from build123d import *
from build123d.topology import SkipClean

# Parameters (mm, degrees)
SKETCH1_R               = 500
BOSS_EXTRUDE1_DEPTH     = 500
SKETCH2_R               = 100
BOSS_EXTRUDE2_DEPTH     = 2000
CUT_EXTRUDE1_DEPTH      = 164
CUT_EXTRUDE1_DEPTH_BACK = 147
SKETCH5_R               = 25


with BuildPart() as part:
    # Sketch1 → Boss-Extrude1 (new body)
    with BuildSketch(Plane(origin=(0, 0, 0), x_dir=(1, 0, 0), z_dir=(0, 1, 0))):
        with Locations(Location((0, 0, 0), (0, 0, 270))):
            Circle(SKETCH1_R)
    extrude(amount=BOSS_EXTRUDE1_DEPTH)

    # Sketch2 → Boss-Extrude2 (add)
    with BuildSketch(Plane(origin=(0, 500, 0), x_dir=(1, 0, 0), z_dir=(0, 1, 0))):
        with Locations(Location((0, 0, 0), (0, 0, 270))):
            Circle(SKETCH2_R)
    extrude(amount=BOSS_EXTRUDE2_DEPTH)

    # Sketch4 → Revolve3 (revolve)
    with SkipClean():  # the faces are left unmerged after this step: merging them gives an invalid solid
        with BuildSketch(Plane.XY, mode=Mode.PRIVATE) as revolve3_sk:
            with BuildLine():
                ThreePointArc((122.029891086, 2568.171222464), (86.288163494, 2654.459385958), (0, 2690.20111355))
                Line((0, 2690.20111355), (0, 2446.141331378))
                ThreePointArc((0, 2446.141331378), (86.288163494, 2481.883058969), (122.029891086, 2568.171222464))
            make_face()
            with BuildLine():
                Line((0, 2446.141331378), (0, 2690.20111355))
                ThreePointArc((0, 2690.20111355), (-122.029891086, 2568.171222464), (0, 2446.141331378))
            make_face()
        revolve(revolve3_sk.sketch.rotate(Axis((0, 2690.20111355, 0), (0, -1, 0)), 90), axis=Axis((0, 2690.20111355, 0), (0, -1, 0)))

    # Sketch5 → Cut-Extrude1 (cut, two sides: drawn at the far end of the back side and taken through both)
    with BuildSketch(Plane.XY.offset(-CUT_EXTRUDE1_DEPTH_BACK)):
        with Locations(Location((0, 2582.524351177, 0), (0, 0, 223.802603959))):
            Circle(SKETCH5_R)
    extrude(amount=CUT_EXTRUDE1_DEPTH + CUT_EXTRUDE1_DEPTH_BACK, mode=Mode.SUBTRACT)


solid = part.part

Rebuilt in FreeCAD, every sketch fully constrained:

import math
import FreeCAD as App
import Part
import Sketcher
from FreeCAD import Vector
Q = App.Units.Quantity

doc = App.newDocument("Part")
params = doc.addObject("Spreadsheet::Sheet", "Params")
for row, (alias, value) in enumerate([
    ("sketch1_diameter", "1000 mm"),
    ("pad1_length", "500 mm"),
    ("sketch2_diameter", "200 mm"),
    ("pad2_length", "2000 mm"),
    ("revolution_angle", "360 deg"),
    ("sketch4_diameter", "50 mm"),
], start=1):
    params.set(f"A{row}", alias)
    params.set(f"B{row}", "=" + value)
    params.setAlias(f"B{row}", alias)

body = doc.addObject("PartDesign::Body", "Body")

# Sketch on XZ plane
sketch1 = doc.addObject("Sketcher::SketchObject", "Sketch")
body.addObject(sketch1)
sketch1.AttachmentSupport = (doc.XZ_Plane, [""])
sketch1.MapMode = "FlatFace"
sketch1.addGeometry(Part.Circle(Vector(0, 0, 0), Vector(0, 0, 1), 500), False)
sketch1.addConstraint([
    Sketcher.Constraint("Coincident", 0, 3, -1, 1),
    Sketcher.Constraint("Diameter", 0, Q("1000 mm")),
])
sketch1.setExpression("Constraints[1]", "Params.sketch1_diameter")
pad1 = doc.addObject("PartDesign::Pad", "Pad")
body.addObject(pad1)
pad1.Profile = sketch1
pad1.setExpression("Length", "Params.pad1_length")
pad1.Reversed = True

# Sketch on XZ plane
sketch2 = doc.addObject("Sketcher::SketchObject", "Sketch001")
body.addObject(sketch2)
sketch2.AttachmentSupport = (doc.XZ_Plane, [""])
sketch2.MapMode = "FlatFace"
sketch2.AttachmentOffset = App.Placement(Vector(0, 0, -500), App.Rotation())
sketch2.addGeometry(Part.Circle(Vector(0, 0, 0), Vector(0, 0, 1), 100), False)
sketch2.addConstraint([
    Sketcher.Constraint("Coincident", 0, 3, -1, 1),
    Sketcher.Constraint("Diameter", 0, Q("200 mm")),
])
sketch2.setExpression("Constraints[1]", "Params.sketch2_diameter")
pad2 = doc.addObject("PartDesign::Pad", "Pad001")
body.addObject(pad2)
pad2.Profile = sketch2
pad2.setExpression("Length", "Params.pad2_length")
pad2.Reversed = True

# Sketch on XY plane
sketch3 = doc.addObject("Sketcher::SketchObject", "Sketch002")
body.addObject(sketch3)
sketch3.AttachmentSupport = (doc.XY_Plane, [""])
sketch3.MapMode = "FlatFace"
sketch3.addGeometry([
    Part.ArcOfCircle(Part.Circle(Vector(0, 2568, 0), Vector(0, 0, 1), 122), math.radians(0), math.radians(90)),  # 0
    Part.LineSegment(Vector(0, 2690, 0), Vector(0, 2446, 0)),  # 1
    Part.ArcOfCircle(Part.Circle(Vector(0, 2568, 0), Vector(0, 0, 1), 122), math.radians(-90), math.radians(0)),  # 2
    Part.LineSegment(Vector(0, 2446, 0), Vector(0, 2690, 0)),  # 3
    Part.ArcOfCircle(Part.Circle(Vector(0, 2568, 0), Vector(0, 0, 1), 122), math.radians(90), math.radians(270)),  # 4
], False)
sketch3.addConstraint([
    Sketcher.Constraint("Coincident", 0, 2, 1, 1),
    Sketcher.Constraint("Coincident", 1, 2, 2, 1),
    Sketcher.Constraint("Tangent", 2, 2, 0, 1),
    Sketcher.Constraint("Coincident", 3, 1, 4, 2),
    Sketcher.Constraint("Coincident", 4, 1, 3, 2),
    Sketcher.Constraint("Vertical", 1),
    Sketcher.Constraint("Vertical", 3),
    Sketcher.Constraint("Coincident", 4, 3, 0, 3),
    Sketcher.Constraint("Coincident", 3, 1, 1, 2),
    Sketcher.Constraint("Equal", 0, 2),
    Sketcher.Constraint("PointOnObject", 0, 3, -2),
    Sketcher.Constraint("PointOnObject", 0, 2, -2),
    Sketcher.Constraint("Horizontal", 4, 3, 2, 2),
    Sketcher.Constraint("Radius", 0, Q("122.029891 mm")),
    Sketcher.Constraint("DistanceY", -1, 1, 1, 2, Q("2446.141331 mm")),
])
revolution = doc.addObject("PartDesign::Revolution", "Revolution")
body.addObject(revolution)
revolution.Profile = sketch3
revolution.ReferenceAxis = (sketch3, ["V_Axis"])
revolution.setExpression("Angle", "Params.revolution_angle")

# Sketch on XY plane
sketch4 = doc.addObject("Sketcher::SketchObject", "Sketch003")
body.addObject(sketch4)
sketch4.AttachmentSupport = (doc.XY_Plane, [""])
sketch4.MapMode = "FlatFace"
sketch4.addGeometry(Part.Circle(Vector(0, 2583, 0), Vector(0, 0, 1), 25), False)
sketch4.addConstraint([
    Sketcher.Constraint("PointOnObject", 0, 3, -2),
    Sketcher.Constraint("Diameter", 0, Q("50 mm")),
    Sketcher.Constraint("DistanceY", -1, 1, 0, 3, Q("2582.524351 mm")),
])
sketch4.setExpression("Constraints[1]", "Params.sketch4_diameter")
pocket1 = doc.addObject("PartDesign::Pocket", "Pocket")
body.addObject(pocket1)
pocket1.Profile = sketch4
pocket1.Type = "ThroughAll"
pocket1.Midplane = True

doc.recompute()
